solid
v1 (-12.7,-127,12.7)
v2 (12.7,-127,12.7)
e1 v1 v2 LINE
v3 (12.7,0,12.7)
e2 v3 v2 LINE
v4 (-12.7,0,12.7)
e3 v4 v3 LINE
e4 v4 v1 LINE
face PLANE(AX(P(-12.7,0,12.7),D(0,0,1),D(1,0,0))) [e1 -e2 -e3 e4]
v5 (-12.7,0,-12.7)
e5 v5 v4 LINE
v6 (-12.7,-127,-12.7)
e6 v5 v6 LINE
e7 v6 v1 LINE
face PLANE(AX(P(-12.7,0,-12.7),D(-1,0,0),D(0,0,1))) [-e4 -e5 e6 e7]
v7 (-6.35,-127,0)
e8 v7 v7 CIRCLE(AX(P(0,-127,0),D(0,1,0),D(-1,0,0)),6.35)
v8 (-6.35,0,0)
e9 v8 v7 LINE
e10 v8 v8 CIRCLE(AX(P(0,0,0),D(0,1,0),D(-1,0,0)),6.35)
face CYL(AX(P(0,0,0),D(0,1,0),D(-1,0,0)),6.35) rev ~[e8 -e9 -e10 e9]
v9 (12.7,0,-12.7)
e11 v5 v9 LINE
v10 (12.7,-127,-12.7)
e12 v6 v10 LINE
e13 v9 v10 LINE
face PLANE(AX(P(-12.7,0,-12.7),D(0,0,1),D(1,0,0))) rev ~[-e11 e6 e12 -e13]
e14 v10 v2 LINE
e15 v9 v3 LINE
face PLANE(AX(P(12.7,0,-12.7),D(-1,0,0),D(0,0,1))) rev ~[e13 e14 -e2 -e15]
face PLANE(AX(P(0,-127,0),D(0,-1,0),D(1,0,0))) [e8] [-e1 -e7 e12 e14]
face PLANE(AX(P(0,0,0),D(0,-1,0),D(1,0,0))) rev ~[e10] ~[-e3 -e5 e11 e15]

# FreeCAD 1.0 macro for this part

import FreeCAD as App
import Part
import Sketcher
from FreeCAD import Vector
Q = App.Units.Quantity


def add_polygon(sketch, points):
    """Adds a closed chain of lines whose ends are joined by coincident constraints."""
    first, n = sketch.GeometryCount, len(points)
    for a, b in zip(points, points[1:] + points[:1]):
        sketch.addGeometry(Part.LineSegment(App.Vector(*a, 0), App.Vector(*b, 0)), False)
    for i in range(n):
        sketch.addConstraint(Sketcher.Constraint("Coincident", first + i, 2, first + (i + 1) % n, 1))

doc = App.newDocument("Part")
params = doc.addObject("Spreadsheet::Sheet", "Params")
for row, (alias, value) in enumerate([
    ("sketch1_width", "1 in"),
    ("pad1_length", "5 in"),
    ("sketch2_diameter", "0.5 in"),
], start=1):
    params.set(f"A{row}", alias)
    params.set(f"B{row}", "=" + value)
    params.setAlias(f"B{row}", alias)

body = doc.addObject("PartDesign::Body", "Body")

# Sketch on XZ plane
sketch1 = body.newObject("Sketcher::SketchObject", "Sketch")
sketch1.AttachmentSupport = (doc.getObject("XZ_Plane"), [""])
sketch1.MapMode = "FlatFace"
add_polygon(sketch1, [(-12.7, 12.7), (-12.7, -12.7), (12.7, -12.7), (12.7, 12.7)])  # lines 0-3
sketch1.addConstraint([
    Sketcher.Constraint("Vertical", 0),
    Sketcher.Constraint("Horizontal", 1),
    Sketcher.Constraint("Vertical", 2),
    Sketcher.Constraint("Horizontal", 3),
    Sketcher.Constraint("Symmetric", 0, 2, 2, 2, -1, 1),
    Sketcher.Constraint("Equal", 3, 0),
    Sketcher.Constraint("DistanceX", 1, 1, 1, 2, Q("1 in")),
])
sketch1.setExpression("Constraints[10]", "Params.sketch1_width")
pad1 = body.newObject("PartDesign::Pad", "Pad")
pad1.Profile = sketch1
pad1.setExpression("Length", "Params.pad1_length")

# Sketch on XZ plane
sketch2 = body.newObject("Sketcher::SketchObject", "Sketch001")
sketch2.AttachmentSupport = (doc.getObject("XZ_Plane"), [""])
sketch2.MapMode = "FlatFace"
sketch2.addGeometry(Part.Circle(Vector(0, 0, 0), Vector(0, 0, 1), 6.35), False)
sketch2.addConstraint([
    Sketcher.Constraint("Coincident", 0, 3, -1, 1),
    Sketcher.Constraint("Diameter", 0, Q("0.5 in")),
])
sketch2.setExpression("Constraints[1]", "Params.sketch2_diameter")
pocket1 = body.newObject("PartDesign::Pocket", "Pocket")
pocket1.Profile = sketch2
pocket1.Type = "ThroughAll"
pocket1.Reversed = True

doc.recompute()
